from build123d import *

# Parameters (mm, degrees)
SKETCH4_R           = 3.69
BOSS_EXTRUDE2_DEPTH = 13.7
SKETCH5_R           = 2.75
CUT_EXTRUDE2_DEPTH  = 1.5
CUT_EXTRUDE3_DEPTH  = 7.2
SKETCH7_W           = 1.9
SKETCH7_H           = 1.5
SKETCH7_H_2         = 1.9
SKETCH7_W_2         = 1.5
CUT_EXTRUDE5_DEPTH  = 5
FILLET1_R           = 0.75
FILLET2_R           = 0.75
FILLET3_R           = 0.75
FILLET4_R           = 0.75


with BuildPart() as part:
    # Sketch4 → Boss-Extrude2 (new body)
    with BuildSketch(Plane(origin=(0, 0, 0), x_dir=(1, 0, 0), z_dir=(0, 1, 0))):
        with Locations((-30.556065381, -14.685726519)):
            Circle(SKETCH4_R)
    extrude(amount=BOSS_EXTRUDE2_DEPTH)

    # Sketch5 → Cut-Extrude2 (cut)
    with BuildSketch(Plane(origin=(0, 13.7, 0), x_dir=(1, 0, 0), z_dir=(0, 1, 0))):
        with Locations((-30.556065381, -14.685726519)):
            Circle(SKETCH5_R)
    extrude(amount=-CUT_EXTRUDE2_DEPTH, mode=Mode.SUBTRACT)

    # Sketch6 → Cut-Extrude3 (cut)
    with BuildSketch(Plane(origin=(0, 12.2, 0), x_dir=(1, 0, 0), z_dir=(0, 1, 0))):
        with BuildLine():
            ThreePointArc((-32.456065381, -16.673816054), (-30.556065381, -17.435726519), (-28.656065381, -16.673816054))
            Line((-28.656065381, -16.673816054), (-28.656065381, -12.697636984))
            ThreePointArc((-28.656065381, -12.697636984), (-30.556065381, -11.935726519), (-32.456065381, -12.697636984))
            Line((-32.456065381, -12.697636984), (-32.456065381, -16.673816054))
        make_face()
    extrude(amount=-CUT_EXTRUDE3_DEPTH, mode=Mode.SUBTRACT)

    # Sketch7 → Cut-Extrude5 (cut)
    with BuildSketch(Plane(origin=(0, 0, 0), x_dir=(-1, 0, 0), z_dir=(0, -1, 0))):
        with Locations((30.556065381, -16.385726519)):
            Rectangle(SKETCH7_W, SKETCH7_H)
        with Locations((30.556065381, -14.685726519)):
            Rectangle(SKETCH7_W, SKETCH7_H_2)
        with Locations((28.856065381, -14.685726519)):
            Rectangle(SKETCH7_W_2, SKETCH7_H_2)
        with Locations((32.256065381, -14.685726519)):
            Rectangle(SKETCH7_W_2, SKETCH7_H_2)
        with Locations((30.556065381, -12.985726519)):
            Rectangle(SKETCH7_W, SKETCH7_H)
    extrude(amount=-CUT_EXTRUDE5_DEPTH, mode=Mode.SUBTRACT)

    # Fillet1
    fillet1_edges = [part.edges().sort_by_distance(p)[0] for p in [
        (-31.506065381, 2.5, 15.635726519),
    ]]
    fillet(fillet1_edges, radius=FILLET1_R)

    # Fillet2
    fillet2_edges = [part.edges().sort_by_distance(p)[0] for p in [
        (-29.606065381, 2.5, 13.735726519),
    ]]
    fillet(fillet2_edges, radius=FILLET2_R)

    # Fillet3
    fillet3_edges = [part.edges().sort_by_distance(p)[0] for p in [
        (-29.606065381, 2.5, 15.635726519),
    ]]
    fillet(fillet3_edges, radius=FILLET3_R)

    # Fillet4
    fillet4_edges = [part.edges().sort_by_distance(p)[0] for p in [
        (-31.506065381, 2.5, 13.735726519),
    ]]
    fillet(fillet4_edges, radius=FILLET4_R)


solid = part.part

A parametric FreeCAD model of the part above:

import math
import FreeCAD as App
import Part
import Sketcher
from FreeCAD import Vector


def edges_at(feature, points):
    """Names of the edges that pass closest to the given points."""
    edges = feature.Shape.Edges
    near = lambda p: min(range(len(edges)), key=lambda i: edges[i].distToShape(Part.Vertex(*p))[0])
    return sorted({f"Edge{near(p) + 1}" for p in points})


def add_polygon(sketch, points):
    """Adds a closed chain of lines whose ends are joined by coincident constraints."""
    first, n = sketch.GeometryCount, len(points)
    for a, b in zip(points, points[1:] + points[:1]):
        sketch.addGeometry(Part.LineSegment(App.Vector(*a, 0), App.Vector(*b, 0)), False)
    for i in range(n):
        sketch.addConstraint(Sketcher.Constraint("Coincident", first + i, 2, first + (i + 1) % n, 1))

doc = App.newDocument("Part")
body = doc.addObject("PartDesign::Body", "Body")

# Sketch on XZ plane
sketch1 = body.newObject("Sketcher::SketchObject", "Sketch")
sketch1.AttachmentSupport = (doc.getObject("XZ_Plane"), [""])
sketch1.MapMode = "FlatFace"
sketch1.addGeometry(Part.Circle(Vector(-30.6, 14.7, 0), Vector(0, 0, 1), 3.7), False)
sketch1.addConstraint([
    Sketcher.Constraint("Diameter", 0, 7.38),
    Sketcher.Constraint("DistanceX", 0, 3, -1, 1, 30.556065),
    Sketcher.Constraint("DistanceY", -1, 1, 0, 3, 14.685727),
])
pad1 = body.newObject("PartDesign::Pad", "Pad")
pad1.Profile = sketch1
pad1.Length = 13.7
pad1.Reversed = True

# Sketch on XZ plane
sketch2 = body.newObject("Sketcher::SketchObject", "Sketch001")
sketch2.AttachmentSupport = (doc.getObject("XZ_Plane"), [""])
sketch2.MapMode = "FlatFace"
sketch2.AttachmentOffset = App.Placement(Vector(0, 0, -13.7), App.Rotation())
sketch2.addGeometry(Part.Circle(Vector(-30.6, 14.7, 0), Vector(0, 0, 1), 2.8), False)
sketch2.addConstraint([
    Sketcher.Constraint("Diameter", 0, 5.5),
    Sketcher.Constraint("DistanceX", 0, 3, -1, 1, 30.556065),
    Sketcher.Constraint("DistanceY", -1, 1, 0, 3, 14.685727),
])
pocket1 = body.newObject("PartDesign::Pocket", "Pocket")
pocket1.Profile = sketch2
pocket1.Length = 1.5
pocket1.Reversed = True

# Sketch on XZ plane
sketch3 = body.newObject("Sketcher::SketchObject", "Sketch002")
sketch3.AttachmentSupport = (doc.getObject("XZ_Plane"), [""])
sketch3.MapMode = "FlatFace"
sketch3.AttachmentOffset = App.Placement(Vector(0, 0, -12.2), App.Rotation())
sketch3.addGeometry([
    Part.ArcOfCircle(Part.Circle(Vector(-30.6, 14.7, 0), Vector(0, 0, 1), 2.7), math.radians(46), math.radians(134)),
    Part.LineSegment(Vector(-28.7, 16.7, 0), Vector(-28.7, 12.7, 0)),
    Part.ArcOfCircle(Part.Circle(Vector(-30.6, 14.7, 0), Vector(0, 0, 1), 2.7), math.radians(-134), math.radians(-46)),
    Part.LineSegment(Vector(-32.5, 12.7, 0), Vector(-32.5, 16.7, 0)),
], False)
sketch3.addConstraint([
    Sketcher.Constraint("Coincident", 0, 1, 1, 1),
    Sketcher.Constraint("Coincident", 1, 2, 2, 2),
    Sketcher.Constraint("Coincident", 2, 1, 3, 1),
    Sketcher.Constraint("Coincident", 3, 2, 0, 2),
    Sketcher.Constraint("Vertical", 1),
    Sketcher.Constraint("Vertical", 3),
    Sketcher.Constraint("Coincident", 2, 3, 0, 3),
    Sketcher.Constraint("Equal", 0, 2),
    Sketcher.Constraint("Horizontal", 1, 2, 2, 1),
    Sketcher.Constraint("Radius", 0, 2.75),
    Sketcher.Constraint("DistanceX", 0, 3, 0, 1, 1.9),
    Sketcher.Constraint("DistanceX", 0, 3, -1, 1, 30.556065),
    Sketcher.Constraint("DistanceY", -1, 1, 0, 3, 14.685727),
])
pocket2 = body.newObject("PartDesign::Pocket", "Pocket001")
pocket2.Profile = sketch3
pocket2.Length = 7.2
pocket2.Reversed = True

# Sketch on XZ plane
sketch4 = body.newObject("Sketcher::SketchObject", "Sketch003")
sketch4.AttachmentSupport = (doc.getObject("XZ_Plane"), [""])
sketch4.MapMode = "FlatFace"
add_polygon(sketch4, [(-29.6, 17.1), (-31.5, 17.1), (-31.5, 15.6), (-33, 15.6), (-33, 13.7), (-31.5, 13.7), (-31.5, 12.2), (-29.6, 12.2), (-29.6, 13.7), (-28.1, 13.7), (-28.1, 15.6), (-29.6, 15.6)])  # lines 0-11
sketch4.addConstraint([
    Sketcher.Constraint("Horizontal", 0),
    Sketcher.Constraint("Vertical", 1),
    Sketcher.Constraint("Horizontal", 2),
    Sketcher.Constraint("Vertical", 3),
    Sketcher.Constraint("Horizontal", 4),
    Sketcher.Constraint("Vertical", 5),
    Sketcher.Constraint("Horizontal", 6),
    Sketcher.Constraint("Vertical", 7),
    Sketcher.Constraint("Horizontal", 8),
    Sketcher.Constraint("Vertical", 9),
    Sketcher.Constraint("Horizontal", 10),
    Sketcher.Constraint("Vertical", 11),
    Sketcher.Constraint("Horizontal", 4, 2, 7, 2),
    Sketcher.Constraint("Horizontal", 2, 2, 9, 2),
    Sketcher.Constraint("Vertical", 1, 2, 4, 2),
    Sketcher.Constraint("Vertical", 7, 2, 10, 2),
    Sketcher.Constraint("Equal", 4, 8),
    Sketcher.Constraint("Equal", 10, 1),
    Sketcher.Constraint("Equal", 6, 3),
    Sketcher.Constraint("Equal", 1, 5),
    Sketcher.Constraint("DistanceX", 0, 2, 0, 1, 1.9),
    Sketcher.Constraint("DistanceX", 2, 2, 2, 1, 1.5),
    Sketcher.Constraint("DistanceX", 0, 2, -1, 1, 31.506065),
    Sketcher.Constraint("DistanceY", -1, 1, 0, 2, 17.135727),
])
pocket3 = body.newObject("PartDesign::Pocket", "Pocket002")
pocket3.Profile = sketch4
pocket3.Length = 5
doc.recompute()

fillet = body.newObject("PartDesign::Fillet", "Fillet")
fillet.Base = (pocket3, edges_at(pocket3, [(-31.506, 2.5, 15.636)]))
fillet.Radius = 0.75
doc.recompute()

fillet2 = body.newObject("PartDesign::Fillet", "Fillet001")
fillet2.Base = (fillet, edges_at(fillet, [(-29.606, 2.5, 13.736)]))
fillet2.Radius = 0.75
doc.recompute()

fillet3 = body.newObject("PartDesign::Fillet", "Fillet002")
fillet3.Base = (fillet2, edges_at(fillet2, [(-29.606, 2.5, 15.636)]))
fillet3.Radius = 0.75
doc.recompute()

fillet4 = body.newObject("PartDesign::Fillet", "Fillet003")
fillet4.Base = (fillet3, edges_at(fillet3, [(-31.506, 2.5, 13.736)]))
fillet4.Radius = 0.75

doc.recompute()
